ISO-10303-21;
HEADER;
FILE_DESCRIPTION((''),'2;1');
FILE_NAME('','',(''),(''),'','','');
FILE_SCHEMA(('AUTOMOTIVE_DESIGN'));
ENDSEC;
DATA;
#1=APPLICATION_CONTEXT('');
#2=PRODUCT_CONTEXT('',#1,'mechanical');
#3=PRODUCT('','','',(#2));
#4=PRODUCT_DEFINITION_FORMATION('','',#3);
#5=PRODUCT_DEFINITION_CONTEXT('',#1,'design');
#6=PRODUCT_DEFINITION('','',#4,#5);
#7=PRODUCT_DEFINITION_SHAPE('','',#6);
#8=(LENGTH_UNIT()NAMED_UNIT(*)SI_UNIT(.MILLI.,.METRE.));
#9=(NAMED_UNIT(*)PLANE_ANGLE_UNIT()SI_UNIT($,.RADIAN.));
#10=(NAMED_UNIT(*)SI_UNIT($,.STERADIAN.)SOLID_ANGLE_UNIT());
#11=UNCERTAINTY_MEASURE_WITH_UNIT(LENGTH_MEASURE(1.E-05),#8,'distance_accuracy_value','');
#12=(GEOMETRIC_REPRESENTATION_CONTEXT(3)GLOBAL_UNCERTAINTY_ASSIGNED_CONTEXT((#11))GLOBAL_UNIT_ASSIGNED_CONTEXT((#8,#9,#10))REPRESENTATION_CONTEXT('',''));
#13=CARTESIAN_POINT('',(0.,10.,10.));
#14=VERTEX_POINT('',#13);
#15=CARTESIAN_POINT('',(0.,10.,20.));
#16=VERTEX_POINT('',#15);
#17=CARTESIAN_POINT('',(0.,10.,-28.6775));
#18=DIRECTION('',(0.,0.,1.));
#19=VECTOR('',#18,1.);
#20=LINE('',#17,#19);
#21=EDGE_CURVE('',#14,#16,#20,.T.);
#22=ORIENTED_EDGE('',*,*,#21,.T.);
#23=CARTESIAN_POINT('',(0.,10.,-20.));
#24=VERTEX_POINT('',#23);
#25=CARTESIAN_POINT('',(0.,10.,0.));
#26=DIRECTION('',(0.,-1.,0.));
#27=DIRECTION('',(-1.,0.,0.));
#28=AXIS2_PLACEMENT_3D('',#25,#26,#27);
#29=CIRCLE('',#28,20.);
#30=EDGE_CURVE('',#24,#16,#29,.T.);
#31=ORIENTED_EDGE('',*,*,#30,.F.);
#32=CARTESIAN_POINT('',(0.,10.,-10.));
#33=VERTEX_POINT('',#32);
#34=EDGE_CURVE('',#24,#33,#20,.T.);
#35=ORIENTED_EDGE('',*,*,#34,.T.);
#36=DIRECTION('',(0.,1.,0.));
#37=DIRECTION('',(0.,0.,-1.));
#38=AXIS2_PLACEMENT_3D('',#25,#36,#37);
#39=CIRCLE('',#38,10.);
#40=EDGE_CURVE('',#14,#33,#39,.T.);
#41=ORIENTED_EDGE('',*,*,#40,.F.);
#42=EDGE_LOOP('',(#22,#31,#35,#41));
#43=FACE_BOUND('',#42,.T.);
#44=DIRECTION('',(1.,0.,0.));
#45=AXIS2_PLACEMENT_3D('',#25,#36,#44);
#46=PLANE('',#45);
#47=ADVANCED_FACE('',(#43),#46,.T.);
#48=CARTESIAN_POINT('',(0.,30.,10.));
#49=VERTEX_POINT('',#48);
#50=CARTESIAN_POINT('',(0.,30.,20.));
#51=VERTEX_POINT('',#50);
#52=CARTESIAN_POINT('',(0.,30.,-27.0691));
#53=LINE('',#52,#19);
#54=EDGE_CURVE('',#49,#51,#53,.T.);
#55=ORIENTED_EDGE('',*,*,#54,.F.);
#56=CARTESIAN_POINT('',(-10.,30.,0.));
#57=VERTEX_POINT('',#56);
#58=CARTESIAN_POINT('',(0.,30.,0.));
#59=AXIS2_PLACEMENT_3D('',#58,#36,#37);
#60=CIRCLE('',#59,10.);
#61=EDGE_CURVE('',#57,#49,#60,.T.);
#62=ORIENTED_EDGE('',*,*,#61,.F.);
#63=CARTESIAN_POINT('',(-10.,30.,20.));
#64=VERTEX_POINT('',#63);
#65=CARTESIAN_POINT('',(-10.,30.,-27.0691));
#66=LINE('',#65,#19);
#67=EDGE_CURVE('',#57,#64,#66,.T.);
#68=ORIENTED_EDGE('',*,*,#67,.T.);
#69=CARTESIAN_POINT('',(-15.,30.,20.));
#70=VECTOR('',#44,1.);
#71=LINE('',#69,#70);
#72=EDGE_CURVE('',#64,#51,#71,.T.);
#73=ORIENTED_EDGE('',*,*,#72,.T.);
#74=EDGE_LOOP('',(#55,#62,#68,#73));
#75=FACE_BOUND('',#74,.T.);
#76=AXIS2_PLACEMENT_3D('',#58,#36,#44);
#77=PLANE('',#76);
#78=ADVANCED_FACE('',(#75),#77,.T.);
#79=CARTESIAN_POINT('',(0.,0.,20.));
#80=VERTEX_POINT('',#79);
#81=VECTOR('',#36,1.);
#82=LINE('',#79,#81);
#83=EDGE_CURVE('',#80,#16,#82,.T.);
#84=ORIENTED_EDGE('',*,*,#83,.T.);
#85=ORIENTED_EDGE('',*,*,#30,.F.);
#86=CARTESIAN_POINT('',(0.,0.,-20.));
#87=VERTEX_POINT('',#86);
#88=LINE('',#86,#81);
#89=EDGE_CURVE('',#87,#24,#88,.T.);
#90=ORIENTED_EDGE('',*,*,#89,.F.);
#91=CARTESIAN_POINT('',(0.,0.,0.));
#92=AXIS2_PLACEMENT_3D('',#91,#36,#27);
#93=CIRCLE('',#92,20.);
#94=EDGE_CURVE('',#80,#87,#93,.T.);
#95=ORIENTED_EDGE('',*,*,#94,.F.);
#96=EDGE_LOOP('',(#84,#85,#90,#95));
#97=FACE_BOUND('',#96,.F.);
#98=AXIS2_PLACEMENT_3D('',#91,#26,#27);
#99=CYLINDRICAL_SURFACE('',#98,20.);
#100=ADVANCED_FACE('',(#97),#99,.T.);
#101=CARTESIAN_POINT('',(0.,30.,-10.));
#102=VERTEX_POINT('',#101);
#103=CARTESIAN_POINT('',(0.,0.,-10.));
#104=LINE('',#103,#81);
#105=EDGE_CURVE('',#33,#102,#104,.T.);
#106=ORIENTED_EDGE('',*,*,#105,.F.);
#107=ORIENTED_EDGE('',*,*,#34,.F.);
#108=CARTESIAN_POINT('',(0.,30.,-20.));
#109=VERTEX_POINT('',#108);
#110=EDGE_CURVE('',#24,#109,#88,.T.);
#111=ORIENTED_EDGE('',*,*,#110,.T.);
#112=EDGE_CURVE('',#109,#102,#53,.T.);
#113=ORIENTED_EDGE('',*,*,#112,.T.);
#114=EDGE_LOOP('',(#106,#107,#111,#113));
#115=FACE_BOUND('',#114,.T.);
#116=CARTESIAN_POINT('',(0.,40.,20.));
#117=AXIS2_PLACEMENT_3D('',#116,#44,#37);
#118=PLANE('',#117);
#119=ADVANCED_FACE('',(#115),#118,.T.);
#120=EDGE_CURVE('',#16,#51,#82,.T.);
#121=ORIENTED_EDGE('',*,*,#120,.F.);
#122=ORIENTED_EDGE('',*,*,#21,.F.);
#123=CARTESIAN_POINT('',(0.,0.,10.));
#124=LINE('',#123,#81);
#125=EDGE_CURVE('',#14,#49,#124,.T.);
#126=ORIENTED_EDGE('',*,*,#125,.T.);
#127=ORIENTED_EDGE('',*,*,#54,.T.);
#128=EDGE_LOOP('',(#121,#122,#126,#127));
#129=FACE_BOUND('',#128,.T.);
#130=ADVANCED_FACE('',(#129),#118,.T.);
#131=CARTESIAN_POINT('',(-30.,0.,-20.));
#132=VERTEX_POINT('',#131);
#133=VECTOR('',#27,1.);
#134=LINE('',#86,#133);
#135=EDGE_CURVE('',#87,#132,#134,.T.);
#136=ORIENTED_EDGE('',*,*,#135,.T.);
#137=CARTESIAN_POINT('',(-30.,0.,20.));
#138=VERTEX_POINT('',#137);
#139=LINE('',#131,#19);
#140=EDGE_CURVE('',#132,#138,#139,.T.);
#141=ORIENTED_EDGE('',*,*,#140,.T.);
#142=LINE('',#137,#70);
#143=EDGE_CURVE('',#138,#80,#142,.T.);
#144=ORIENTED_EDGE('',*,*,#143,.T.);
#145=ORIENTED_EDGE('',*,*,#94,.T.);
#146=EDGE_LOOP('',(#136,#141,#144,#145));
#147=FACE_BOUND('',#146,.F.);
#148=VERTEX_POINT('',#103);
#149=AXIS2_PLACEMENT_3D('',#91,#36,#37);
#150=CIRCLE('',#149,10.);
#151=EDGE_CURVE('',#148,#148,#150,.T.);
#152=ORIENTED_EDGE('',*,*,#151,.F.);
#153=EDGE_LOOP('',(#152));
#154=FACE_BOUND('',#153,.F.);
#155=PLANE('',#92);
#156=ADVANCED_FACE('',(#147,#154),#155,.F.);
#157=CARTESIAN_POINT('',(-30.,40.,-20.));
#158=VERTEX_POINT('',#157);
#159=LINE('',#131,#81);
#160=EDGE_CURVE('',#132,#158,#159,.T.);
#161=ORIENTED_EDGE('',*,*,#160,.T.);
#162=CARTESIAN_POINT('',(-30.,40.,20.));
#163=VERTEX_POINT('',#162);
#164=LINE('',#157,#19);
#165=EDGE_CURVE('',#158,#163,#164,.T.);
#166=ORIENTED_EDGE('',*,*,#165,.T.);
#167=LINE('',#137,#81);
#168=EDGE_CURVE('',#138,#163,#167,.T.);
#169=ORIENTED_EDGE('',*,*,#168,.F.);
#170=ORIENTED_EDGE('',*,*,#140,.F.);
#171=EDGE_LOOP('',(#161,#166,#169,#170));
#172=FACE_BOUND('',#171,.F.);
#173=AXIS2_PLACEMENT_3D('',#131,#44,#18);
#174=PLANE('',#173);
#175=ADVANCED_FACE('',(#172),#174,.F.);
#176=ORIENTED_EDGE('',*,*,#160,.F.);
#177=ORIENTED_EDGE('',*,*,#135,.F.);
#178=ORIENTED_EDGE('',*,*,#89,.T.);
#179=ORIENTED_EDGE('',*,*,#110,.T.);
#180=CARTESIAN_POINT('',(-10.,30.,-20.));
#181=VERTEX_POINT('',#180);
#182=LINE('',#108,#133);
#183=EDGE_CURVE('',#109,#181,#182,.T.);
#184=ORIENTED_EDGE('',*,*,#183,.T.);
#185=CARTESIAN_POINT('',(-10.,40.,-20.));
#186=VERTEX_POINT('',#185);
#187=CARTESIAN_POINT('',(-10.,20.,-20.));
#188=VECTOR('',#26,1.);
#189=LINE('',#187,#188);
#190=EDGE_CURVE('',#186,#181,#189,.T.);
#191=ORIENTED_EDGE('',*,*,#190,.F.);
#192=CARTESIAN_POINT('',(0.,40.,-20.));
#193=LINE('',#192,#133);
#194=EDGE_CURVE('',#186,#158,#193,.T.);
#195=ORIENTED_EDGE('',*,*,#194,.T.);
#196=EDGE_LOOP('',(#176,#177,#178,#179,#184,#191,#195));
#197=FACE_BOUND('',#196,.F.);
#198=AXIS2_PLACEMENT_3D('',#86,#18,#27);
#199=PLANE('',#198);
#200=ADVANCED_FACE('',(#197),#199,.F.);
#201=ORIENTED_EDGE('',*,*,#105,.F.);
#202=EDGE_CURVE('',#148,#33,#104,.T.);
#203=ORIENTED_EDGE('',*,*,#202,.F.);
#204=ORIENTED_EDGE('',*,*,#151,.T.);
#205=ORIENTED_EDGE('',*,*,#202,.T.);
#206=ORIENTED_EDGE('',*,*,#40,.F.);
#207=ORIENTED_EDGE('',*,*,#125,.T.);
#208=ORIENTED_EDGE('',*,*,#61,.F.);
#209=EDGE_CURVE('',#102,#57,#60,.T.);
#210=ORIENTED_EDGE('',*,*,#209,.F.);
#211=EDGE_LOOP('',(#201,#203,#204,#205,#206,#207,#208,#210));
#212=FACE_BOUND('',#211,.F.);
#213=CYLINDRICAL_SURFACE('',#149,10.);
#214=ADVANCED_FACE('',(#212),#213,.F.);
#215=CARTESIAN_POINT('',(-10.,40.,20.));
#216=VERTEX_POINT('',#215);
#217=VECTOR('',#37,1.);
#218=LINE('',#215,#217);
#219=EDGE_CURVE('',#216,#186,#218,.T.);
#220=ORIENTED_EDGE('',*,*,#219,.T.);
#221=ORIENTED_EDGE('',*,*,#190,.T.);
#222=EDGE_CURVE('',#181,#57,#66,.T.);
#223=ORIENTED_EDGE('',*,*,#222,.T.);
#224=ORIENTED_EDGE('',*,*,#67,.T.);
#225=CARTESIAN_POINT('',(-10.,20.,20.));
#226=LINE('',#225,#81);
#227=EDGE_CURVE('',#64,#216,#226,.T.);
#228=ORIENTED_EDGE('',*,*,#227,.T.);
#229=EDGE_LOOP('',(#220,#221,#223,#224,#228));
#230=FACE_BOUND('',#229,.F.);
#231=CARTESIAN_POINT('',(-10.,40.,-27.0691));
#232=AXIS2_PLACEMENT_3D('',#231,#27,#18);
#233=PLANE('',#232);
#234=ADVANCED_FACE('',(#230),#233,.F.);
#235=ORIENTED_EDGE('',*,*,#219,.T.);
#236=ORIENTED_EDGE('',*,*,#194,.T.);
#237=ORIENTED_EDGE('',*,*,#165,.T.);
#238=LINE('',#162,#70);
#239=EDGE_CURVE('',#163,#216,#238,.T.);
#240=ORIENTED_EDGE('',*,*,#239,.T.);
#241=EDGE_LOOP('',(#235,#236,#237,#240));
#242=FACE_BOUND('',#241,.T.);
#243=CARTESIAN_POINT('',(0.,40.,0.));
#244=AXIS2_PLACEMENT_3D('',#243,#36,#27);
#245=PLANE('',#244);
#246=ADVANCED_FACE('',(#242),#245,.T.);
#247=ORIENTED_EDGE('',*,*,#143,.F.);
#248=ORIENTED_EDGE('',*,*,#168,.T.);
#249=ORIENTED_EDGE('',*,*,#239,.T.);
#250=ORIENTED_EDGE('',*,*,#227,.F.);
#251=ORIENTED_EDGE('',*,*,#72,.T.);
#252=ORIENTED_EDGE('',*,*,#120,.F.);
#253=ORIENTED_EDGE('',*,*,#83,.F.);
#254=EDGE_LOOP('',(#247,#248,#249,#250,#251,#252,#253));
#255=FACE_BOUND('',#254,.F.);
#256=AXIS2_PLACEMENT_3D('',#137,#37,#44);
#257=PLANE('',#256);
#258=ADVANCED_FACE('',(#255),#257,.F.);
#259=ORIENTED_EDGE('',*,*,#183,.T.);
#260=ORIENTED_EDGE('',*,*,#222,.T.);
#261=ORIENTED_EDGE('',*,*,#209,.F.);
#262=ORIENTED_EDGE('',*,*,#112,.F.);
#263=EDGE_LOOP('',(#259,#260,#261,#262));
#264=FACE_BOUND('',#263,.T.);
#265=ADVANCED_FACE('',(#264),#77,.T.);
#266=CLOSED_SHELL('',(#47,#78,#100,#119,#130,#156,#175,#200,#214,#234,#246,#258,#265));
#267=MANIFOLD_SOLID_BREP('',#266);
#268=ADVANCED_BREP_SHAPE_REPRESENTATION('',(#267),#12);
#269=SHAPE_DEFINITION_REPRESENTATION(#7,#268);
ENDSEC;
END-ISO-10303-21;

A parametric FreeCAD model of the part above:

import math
import FreeCAD as App
import Part
import Sketcher
Q = App.Units.Quantity


def add_polygon(sketch, points):
    """Adds a closed chain of lines whose ends are joined by coincident constraints."""
    first, n = sketch.GeometryCount, len(points)
    for a, b in zip(points, points[1:] + points[:1]):
        sketch.addGeometry(Part.LineSegment(App.Vector(*a, 0), App.Vector(*b, 0)), False)
    for i in range(n):
        sketch.addConstraint(Sketcher.Constraint("Coincident", first + i, 2, first + (i + 1) % n, 1))

doc = App.newDocument("Part")
body = doc.addObject("PartDesign::Body", "Body")

# Sketch on XZ plane
sketch1 = body.newObject("Sketcher::SketchObject", "Sketch")
sketch1.AttachmentSupport = (doc.getObject("XZ_Plane"), [""])
sketch1.MapMode = "FlatFace"
sketch1.addGeometry([
    Part.LineSegment(App.Vector(0, -20, 0), App.Vector(-30, -20, 0)),
    Part.LineSegment(App.Vector(-30, -20, 0), App.Vector(-30, 20, 0)),
    Part.LineSegment(App.Vector(-30, 20, 0), App.Vector(0, 20, 0)),
    Part.ArcOfCircle(Part.Circle(App.Vector(0, 0, 0), App.Vector(0, 0, 1), 20), math.radians(-90), math.radians(90)),
], False)
sketch1.addConstraint([
    Sketcher.Constraint("Coincident", 0, 2, 1, 1),
    Sketcher.Constraint("Coincident", 1, 2, 2, 1),
    Sketcher.Constraint("Tangent", 2, 2, 3, 2),
    Sketcher.Constraint("Tangent", 3, 1, 0, 1),
    Sketcher.Constraint("Horizontal", 0),
    Sketcher.Constraint("Vertical", 1),
    Sketcher.Constraint("Horizontal", 2),
    Sketcher.Constraint("Coincident", 3, 3, -1, 1),
    Sketcher.Constraint("Radius", 3, Q("20 mm")),
    Sketcher.Constraint("DistanceX", 0, 2, 0, 1, Q("30 mm")),
])
pad1 = body.newObject("PartDesign::Pad", "Pad")
pad1.Profile = sketch1
pad1.Length = 40
pad1.Reversed = True

# Sketch on XZ plane
sketch2 = body.newObject("Sketcher::SketchObject", "Sketch001")
sketch2.AttachmentSupport = (doc.getObject("XZ_Plane"), [""])
sketch2.MapMode = "FlatFace"
sketch2.AttachmentOffset = App.Placement(App.Vector(0, 0, -40), App.Rotation())
add_polygon(sketch2, [(-10, -27), (-10, 30), (0, 30), (0, -27)])  # lines 0-3
sketch2.addConstraint([
    Sketcher.Constraint("Vertical", 0),
    Sketcher.Constraint("Horizontal", 1),
    Sketcher.Constraint("Vertical", 2),
    Sketcher.Constraint("Horizontal", 3),
    Sketcher.Constraint("PointOnObject", 1, 2, -2),
    Sketcher.Constraint("DistanceX", 1, 1, 1, 2, Q("10 mm")),
    Sketcher.Constraint("DistanceY", 0, 1, 0, 2, Q("57.045 mm")),
    Sketcher.Constraint("DistanceY", 2, 2, -1, 1, Q("27.069 mm")),
])
pocket1 = body.newObject("PartDesign::Pocket", "Pocket")
pocket1.Profile = sketch2
pocket1.Length = 10
pocket1.Reversed = True

# Sketch on XZ plane
sketch3 = body.newObject("Sketcher::SketchObject", "Sketch002")
sketch3.AttachmentSupport = (doc.getObject("XZ_Plane"), [""])
sketch3.MapMode = "FlatFace"
sketch3.AttachmentOffset = App.Placement(App.Vector(0, 0, -40), App.Rotation())
add_polygon(sketch3, [(0, 35), (31, 35), (31, -29), (0, -29)])  # lines 0-3
sketch3.addConstraint([
    Sketcher.Constraint("Horizontal", 0),
    Sketcher.Constraint("Vertical", 1),
    Sketcher.Constraint("Horizontal", 2),
    Sketcher.Constraint("Vertical", 3),
    Sketcher.Constraint("PointOnObject", 2, 2, -2),
    Sketcher.Constraint("DistanceX", 0, 1, 0, 2, Q("30.597 mm")),
    Sketcher.Constraint("DistanceY", 1, 2, 1, 1, Q("63.2883 mm")),
    Sketcher.Constraint("DistanceY", -1, 1, 0, 2, Q("34.6108 mm")),
])
pocket2 = body.newObject("PartDesign::Pocket", "Pocket001")
pocket2.Profile = sketch3
pocket2.Length = 30
pocket2.Reversed = True

# Sketch on XZ plane
sketch4 = body.newObject("Sketcher::SketchObject", "Sketch003")
sketch4.AttachmentSupport = (doc.getObject("XZ_Plane"), [""])
sketch4.MapMode = "FlatFace"
sketch4.addGeometry(Part.Circle(App.Vector(0, 0, 0), App.Vector(0, 0, 1), 10), False)
sketch4.addConstraint([
    Sketcher.Constraint("Coincident", 0, 3, -1, 1),
    Sketcher.Constraint("Diameter", 0, Q("20 mm")),
])
doc.recompute()
hole = body.newObject("PartDesign::Hole", "Hole")
hole.Profile = sketch4
hole.ThreadType = "None"
hole.Diameter = 20
hole.DepthType = "ThroughAll"

doc.recompute()
